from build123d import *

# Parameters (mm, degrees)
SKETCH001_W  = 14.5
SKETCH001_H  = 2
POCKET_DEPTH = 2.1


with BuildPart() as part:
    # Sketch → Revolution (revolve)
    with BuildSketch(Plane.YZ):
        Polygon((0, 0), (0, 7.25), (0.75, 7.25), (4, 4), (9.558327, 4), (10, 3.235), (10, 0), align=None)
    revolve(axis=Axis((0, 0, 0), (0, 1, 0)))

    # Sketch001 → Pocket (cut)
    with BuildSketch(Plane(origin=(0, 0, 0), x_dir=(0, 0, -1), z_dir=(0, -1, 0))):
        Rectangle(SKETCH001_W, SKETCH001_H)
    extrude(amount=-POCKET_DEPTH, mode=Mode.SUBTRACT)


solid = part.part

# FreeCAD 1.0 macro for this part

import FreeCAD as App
import Part
import Sketcher
from FreeCAD import Vector
Q = App.Units.Quantity

doc = App.newDocument("Part")
body = doc.addObject("PartDesign::Body", "Body")

sketch1 = body.newObject("Sketcher::SketchObject", "Sketch")
sketch1.AttachmentSupport = (doc.getObject("YZ_Plane"), [""])
sketch1.MapMode = "FlatFace"
sketch1.addGeometry(Part.LineSegment(Vector(0, 7.2, 0), Vector(0, 0, 0)), False)
sketch1.addGeometry(Part.LineSegment(Vector(0, 0, 0), Vector(10, 0, 0)), False)
sketch1.addGeometry(Part.LineSegment(Vector(10, 0, 0), Vector(10, 3.2, 0)), False)
sketch1.addGeometry(Part.LineSegment(Vector(10, 3.2, 0), Vector(9.6, 4, 0)), False)
sketch1.addGeometry(Part.LineSegment(Vector(9.6, 4, 0), Vector(4, 4, 0)), False)
sketch1.addGeometry(Part.LineSegment(Vector(4, 4, 0), Vector(0.8, 7.2, 0)), False)
sketch1.addGeometry(Part.LineSegment(Vector(0.8, 7.2, 0), Vector(0, 7.2, 0)), False)
sketch1.addConstraint(Sketcher.Constraint("Coincident", 0, 2, 1, 1))
sketch1.addConstraint(Sketcher.Constraint("Coincident", 1, 2, 2, 1))
sketch1.addConstraint(Sketcher.Constraint("Coincident", 2, 2, 3, 1))
sketch1.addConstraint(Sketcher.Constraint("Coincident", 3, 2, 4, 1))
sketch1.addConstraint(Sketcher.Constraint("Coincident", 4, 2, 5, 1))
sketch1.addConstraint(Sketcher.Constraint("Coincident", 5, 2, 6, 1))
sketch1.addConstraint(Sketcher.Constraint("Coincident", 6, 2, 0, 1))
sketch1.addConstraint(Sketcher.Constraint("Vertical", 0))
sketch1.addConstraint(Sketcher.Constraint("Horizontal", 1))
sketch1.addConstraint(Sketcher.Constraint("Vertical", 2))
sketch1.addConstraint(Sketcher.Constraint("Horizontal", 4))
sketch1.addConstraint(Sketcher.Constraint("Horizontal", 6))
sketch1.addConstraint(Sketcher.Constraint("Coincident", 0, 2, -1, 1))
sketch1.addConstraint(Sketcher.Constraint("DistanceX", 1, 1, 1, 2, 10.0))
sketch1.addConstraint(Sketcher.Constraint("Angle", 3, Q("120.000002 deg")))
sketch1.addConstraint(Sketcher.Constraint("Angle", 5, Q("135 deg")))
sketch1.addConstraint(Sketcher.Constraint("DistanceY", -1, 1, 3, 2, 4.0))
sketch1.addConstraint(Sketcher.Constraint("DistanceX", -1, 1, 4, 2, 4.0))
sketch1.addConstraint(Sketcher.Constraint("DistanceX", 6, 2, 6, 1, 0.75))
sketch1.addConstraint(Sketcher.Constraint("DistanceY", 2, 1, 2, 2, 3.235))
revolution = body.newObject("PartDesign::Revolution", "Revolution")
revolution.Profile = sketch1
revolution.ReferenceAxis = (sketch1, ["H_Axis"])
revolution.Angle = 360

sketch2 = body.newObject("Sketcher::SketchObject", "Sketch001")
sketch2.AttachmentSupport = (doc.getObject("XZ_Plane"), [""])
sketch2.MapMode = "FlatFace"
sketch2.addGeometry(Part.LineSegment(Vector(1, 7.2, 0), Vector(-1, 7.2, 0)), False)
sketch2.addGeometry(Part.LineSegment(Vector(-1, 7.2, 0), Vector(-1, -7.2, 0)), False)
sketch2.addGeometry(Part.LineSegment(Vector(-1, -7.2, 0), Vector(1, -7.2, 0)), False)
sketch2.addGeometry(Part.LineSegment(Vector(1, -7.2, 0), Vector(1, 7.2, 0)), False)
sketch2.addConstraint(Sketcher.Constraint("Coincident", 0, 2, 1, 1))
sketch2.addConstraint(Sketcher.Constraint("Coincident", 1, 2, 2, 1))
sketch2.addConstraint(Sketcher.Constraint("Coincident", 2, 2, 3, 1))
sketch2.addConstraint(Sketcher.Constraint("Coincident", 3, 2, 0, 1))
sketch2.addConstraint(Sketcher.Constraint("Horizontal", 0))
sketch2.addConstraint(Sketcher.Constraint("Vertical", 1))
sketch2.addConstraint(Sketcher.Constraint("Horizontal", 2))
sketch2.addConstraint(Sketcher.Constraint("Vertical", 3))
sketch2.addConstraint(Sketcher.Constraint("Symmetric", 0, 2, 2, 2, -1, 1))
sketch2.addConstraint(Sketcher.Constraint("DistanceX", 0, 2, 0, 1, 2.0))
sketch2.addConstraint(Sketcher.Constraint("DistanceY", 1, 2, 1, 1, 14.5))
pocket1 = body.newObject("PartDesign::Pocket", "Pocket")
pocket1.Profile = sketch2
pocket1.Length = 2.1

doc.recompute()
